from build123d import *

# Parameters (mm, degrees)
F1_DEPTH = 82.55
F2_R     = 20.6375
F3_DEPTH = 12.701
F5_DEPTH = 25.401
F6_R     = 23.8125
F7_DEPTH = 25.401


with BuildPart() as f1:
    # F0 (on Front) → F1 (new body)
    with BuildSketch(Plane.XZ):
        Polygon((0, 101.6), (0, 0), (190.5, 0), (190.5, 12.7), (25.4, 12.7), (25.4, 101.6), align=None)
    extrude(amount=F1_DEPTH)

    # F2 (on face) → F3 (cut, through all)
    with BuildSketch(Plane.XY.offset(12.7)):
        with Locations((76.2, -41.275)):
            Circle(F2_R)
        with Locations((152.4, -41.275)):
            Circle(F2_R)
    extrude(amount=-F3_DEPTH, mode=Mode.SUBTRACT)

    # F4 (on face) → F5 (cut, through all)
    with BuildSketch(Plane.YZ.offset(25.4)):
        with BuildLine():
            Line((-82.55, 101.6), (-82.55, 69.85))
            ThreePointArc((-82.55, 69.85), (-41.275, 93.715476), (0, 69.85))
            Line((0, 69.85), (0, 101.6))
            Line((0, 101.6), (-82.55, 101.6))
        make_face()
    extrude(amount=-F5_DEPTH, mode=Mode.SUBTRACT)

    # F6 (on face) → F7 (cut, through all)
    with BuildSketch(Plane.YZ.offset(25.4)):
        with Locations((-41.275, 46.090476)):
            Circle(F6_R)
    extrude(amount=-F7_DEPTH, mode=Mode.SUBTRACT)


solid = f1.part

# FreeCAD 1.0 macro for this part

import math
import FreeCAD as App
import Part
import Sketcher
Q = App.Units.Quantity


def add_polygon(sketch, points):
    """Adds a closed chain of lines whose ends are joined by coincident constraints."""
    first, n = sketch.GeometryCount, len(points)
    for a, b in zip(points, points[1:] + points[:1]):
        sketch.addGeometry(Part.LineSegment(App.Vector(*a, 0), App.Vector(*b, 0)), False)
    for i in range(n):
        sketch.addConstraint(Sketcher.Constraint("Coincident", first + i, 2, first + (i + 1) % n, 1))

doc = App.newDocument("Part")
body = doc.addObject("PartDesign::Body", "Body")

# Sketch on XZ plane
sketch1 = doc.addObject("Sketcher::SketchObject", "Sketch")
body.addObject(sketch1)
sketch1.AttachmentSupport = (doc.XZ_Plane, [""])
sketch1.MapMode = "FlatFace"
add_polygon(sketch1, [(0, 102), (0, 0), (190, 0), (190, 13), (25, 13), (25, 102)])  # lines 0-5
sketch1.addConstraint(Sketcher.Constraint("Vertical", 0))
sketch1.addConstraint(Sketcher.Constraint("Horizontal", 1))
sketch1.addConstraint(Sketcher.Constraint("Vertical", 2))
sketch1.addConstraint(Sketcher.Constraint("Horizontal", 3))
sketch1.addConstraint(Sketcher.Constraint("Vertical", 4))
sketch1.addConstraint(Sketcher.Constraint("Horizontal", 5))
sketch1.addConstraint(Sketcher.Constraint("Coincident", 0, 2, -1, 1))
sketch1.addConstraint(Sketcher.Constraint("DistanceX", 5, 2, 5, 1, Q("1 in")))
sketch1.addConstraint(Sketcher.Constraint("DistanceY", 0, 2, 0, 1, Q("4 in")))
sketch1.addConstraint(Sketcher.Constraint("DistanceX", 1, 1, 1, 2, Q("7.5 in")))
sketch1.addConstraint(Sketcher.Constraint("DistanceY", 2, 1, 2, 2, Q("0.5 in")))
pad1 = doc.addObject("PartDesign::Pad", "Pad")
body.addObject(pad1)
pad1.Profile = sketch1
pad1.Length = Q("3.25 in")

# Sketch on XY plane
sketch2 = doc.addObject("Sketcher::SketchObject", "Sketch001")
body.addObject(sketch2)
sketch2.AttachmentSupport = (doc.XY_Plane, [""])
sketch2.MapMode = "FlatFace"
sketch2.AttachmentOffset = App.Placement(App.Vector(0, 0, 0.5 * 25.4), App.Rotation())
sketch2.addGeometry(Part.Circle(App.Vector(76, -41, 0), App.Vector(0, 0, 1), 21), False)
sketch2.addGeometry(Part.Circle(App.Vector(152, -41, 0), App.Vector(0, 0, 1), 21), False)
sketch2.addConstraint(Sketcher.Constraint("Equal", 0, 1))
sketch2.addConstraint(Sketcher.Constraint("Horizontal", 0, 3, 1, 3))
sketch2.addConstraint(Sketcher.Constraint("Diameter", 0, Q("1.625 in")))
sketch2.addConstraint(Sketcher.Constraint("DistanceX", -1, 1, 0, 3, Q("3 in")))
sketch2.addConstraint(Sketcher.Constraint("DistanceX", -1, 1, 1, 3, Q("6 in")))
sketch2.addConstraint(Sketcher.Constraint("DistanceY", 0, 3, -1, 1, Q("1.625 in")))
pocket1 = doc.addObject("PartDesign::Pocket", "Pocket")
body.addObject(pocket1)
pocket1.Profile = sketch2
pocket1.Type = "ThroughAll"

# Sketch on YZ plane
sketch3 = doc.addObject("Sketcher::SketchObject", "Sketch002")
body.addObject(sketch3)
sketch3.AttachmentSupport = (doc.YZ_Plane, [""])
sketch3.MapMode = "FlatFace"
sketch3.AttachmentOffset = App.Placement(App.Vector(0, 0, 1 * 25.4), App.Rotation())
sketch3.addGeometry(Part.LineSegment(App.Vector(-83, 102, 0), App.Vector(-83, 70, 0)), False)
sketch3.addGeometry(Part.ArcOfCircle(Part.Circle(App.Vector(-41, 46, 0), App.Vector(0, 0, 1), 48), math.radians(30), math.radians(150)), False)
sketch3.addGeometry(Part.LineSegment(App.Vector(0, 70, 0), App.Vector(0, 102, 0)), False)
sketch3.addGeometry(Part.LineSegment(App.Vector(0, 102, 0), App.Vector(-83, 102, 0)), False)
sketch3.addConstraint(Sketcher.Constraint("Coincident", 0, 2, 1, 2))
sketch3.addConstraint(Sketcher.Constraint("Coincident", 1, 1, 2, 1))
sketch3.addConstraint(Sketcher.Constraint("Coincident", 2, 2, 3, 1))
sketch3.addConstraint(Sketcher.Constraint("Coincident", 3, 2, 0, 1))
sketch3.addConstraint(Sketcher.Constraint("Vertical", 0))
sketch3.addConstraint(Sketcher.Constraint("Vertical", 2))
sketch3.addConstraint(Sketcher.Constraint("Horizontal", 3))
sketch3.addConstraint(Sketcher.Constraint("PointOnObject", 1, 1, -2))
sketch3.addConstraint(Sketcher.Constraint("Horizontal", 0, 2, 1, 1))
sketch3.addConstraint(Sketcher.Constraint("DistanceY", -1, 1, 2, 2, Q("4 in")))
sketch3.addConstraint(Sketcher.Constraint("Radius", 1, Q("1.875 in")))
sketch3.addConstraint(Sketcher.Constraint("DistanceX", 3, 2, 3, 1, Q("3.25 in")))
sketch3.addConstraint(Sketcher.Constraint("DistanceY", 0, 2, 0, 1, Q("1.25 in")))
pocket2 = doc.addObject("PartDesign::Pocket", "Pocket001")
body.addObject(pocket2)
pocket2.Profile = sketch3
pocket2.Type = "ThroughAll"

# Sketch on YZ plane
sketch4 = doc.addObject("Sketcher::SketchObject", "Sketch003")
body.addObject(sketch4)
sketch4.AttachmentSupport = (doc.YZ_Plane, [""])
sketch4.MapMode = "FlatFace"
sketch4.AttachmentOffset = App.Placement(App.Vector(0, 0, 1 * 25.4), App.Rotation())
sketch4.addGeometry(Part.Circle(App.Vector(-41, 46, 0), App.Vector(0, 0, 1), 24), False)
sketch4.addConstraint(Sketcher.Constraint("Diameter", 0, Q("1.875 in")))
sketch4.addConstraint(Sketcher.Constraint("DistanceX", 0, 3, -1, 1, Q("1.625 in")))
sketch4.addConstraint(Sketcher.Constraint("DistanceY", -1, 1, 0, 3, 46.090476))
pocket3 = doc.addObject("PartDesign::Pocket", "Pocket002")
body.addObject(pocket3)
pocket3.Profile = sketch4
pocket3.Type = "ThroughAll"

doc.recompute()
